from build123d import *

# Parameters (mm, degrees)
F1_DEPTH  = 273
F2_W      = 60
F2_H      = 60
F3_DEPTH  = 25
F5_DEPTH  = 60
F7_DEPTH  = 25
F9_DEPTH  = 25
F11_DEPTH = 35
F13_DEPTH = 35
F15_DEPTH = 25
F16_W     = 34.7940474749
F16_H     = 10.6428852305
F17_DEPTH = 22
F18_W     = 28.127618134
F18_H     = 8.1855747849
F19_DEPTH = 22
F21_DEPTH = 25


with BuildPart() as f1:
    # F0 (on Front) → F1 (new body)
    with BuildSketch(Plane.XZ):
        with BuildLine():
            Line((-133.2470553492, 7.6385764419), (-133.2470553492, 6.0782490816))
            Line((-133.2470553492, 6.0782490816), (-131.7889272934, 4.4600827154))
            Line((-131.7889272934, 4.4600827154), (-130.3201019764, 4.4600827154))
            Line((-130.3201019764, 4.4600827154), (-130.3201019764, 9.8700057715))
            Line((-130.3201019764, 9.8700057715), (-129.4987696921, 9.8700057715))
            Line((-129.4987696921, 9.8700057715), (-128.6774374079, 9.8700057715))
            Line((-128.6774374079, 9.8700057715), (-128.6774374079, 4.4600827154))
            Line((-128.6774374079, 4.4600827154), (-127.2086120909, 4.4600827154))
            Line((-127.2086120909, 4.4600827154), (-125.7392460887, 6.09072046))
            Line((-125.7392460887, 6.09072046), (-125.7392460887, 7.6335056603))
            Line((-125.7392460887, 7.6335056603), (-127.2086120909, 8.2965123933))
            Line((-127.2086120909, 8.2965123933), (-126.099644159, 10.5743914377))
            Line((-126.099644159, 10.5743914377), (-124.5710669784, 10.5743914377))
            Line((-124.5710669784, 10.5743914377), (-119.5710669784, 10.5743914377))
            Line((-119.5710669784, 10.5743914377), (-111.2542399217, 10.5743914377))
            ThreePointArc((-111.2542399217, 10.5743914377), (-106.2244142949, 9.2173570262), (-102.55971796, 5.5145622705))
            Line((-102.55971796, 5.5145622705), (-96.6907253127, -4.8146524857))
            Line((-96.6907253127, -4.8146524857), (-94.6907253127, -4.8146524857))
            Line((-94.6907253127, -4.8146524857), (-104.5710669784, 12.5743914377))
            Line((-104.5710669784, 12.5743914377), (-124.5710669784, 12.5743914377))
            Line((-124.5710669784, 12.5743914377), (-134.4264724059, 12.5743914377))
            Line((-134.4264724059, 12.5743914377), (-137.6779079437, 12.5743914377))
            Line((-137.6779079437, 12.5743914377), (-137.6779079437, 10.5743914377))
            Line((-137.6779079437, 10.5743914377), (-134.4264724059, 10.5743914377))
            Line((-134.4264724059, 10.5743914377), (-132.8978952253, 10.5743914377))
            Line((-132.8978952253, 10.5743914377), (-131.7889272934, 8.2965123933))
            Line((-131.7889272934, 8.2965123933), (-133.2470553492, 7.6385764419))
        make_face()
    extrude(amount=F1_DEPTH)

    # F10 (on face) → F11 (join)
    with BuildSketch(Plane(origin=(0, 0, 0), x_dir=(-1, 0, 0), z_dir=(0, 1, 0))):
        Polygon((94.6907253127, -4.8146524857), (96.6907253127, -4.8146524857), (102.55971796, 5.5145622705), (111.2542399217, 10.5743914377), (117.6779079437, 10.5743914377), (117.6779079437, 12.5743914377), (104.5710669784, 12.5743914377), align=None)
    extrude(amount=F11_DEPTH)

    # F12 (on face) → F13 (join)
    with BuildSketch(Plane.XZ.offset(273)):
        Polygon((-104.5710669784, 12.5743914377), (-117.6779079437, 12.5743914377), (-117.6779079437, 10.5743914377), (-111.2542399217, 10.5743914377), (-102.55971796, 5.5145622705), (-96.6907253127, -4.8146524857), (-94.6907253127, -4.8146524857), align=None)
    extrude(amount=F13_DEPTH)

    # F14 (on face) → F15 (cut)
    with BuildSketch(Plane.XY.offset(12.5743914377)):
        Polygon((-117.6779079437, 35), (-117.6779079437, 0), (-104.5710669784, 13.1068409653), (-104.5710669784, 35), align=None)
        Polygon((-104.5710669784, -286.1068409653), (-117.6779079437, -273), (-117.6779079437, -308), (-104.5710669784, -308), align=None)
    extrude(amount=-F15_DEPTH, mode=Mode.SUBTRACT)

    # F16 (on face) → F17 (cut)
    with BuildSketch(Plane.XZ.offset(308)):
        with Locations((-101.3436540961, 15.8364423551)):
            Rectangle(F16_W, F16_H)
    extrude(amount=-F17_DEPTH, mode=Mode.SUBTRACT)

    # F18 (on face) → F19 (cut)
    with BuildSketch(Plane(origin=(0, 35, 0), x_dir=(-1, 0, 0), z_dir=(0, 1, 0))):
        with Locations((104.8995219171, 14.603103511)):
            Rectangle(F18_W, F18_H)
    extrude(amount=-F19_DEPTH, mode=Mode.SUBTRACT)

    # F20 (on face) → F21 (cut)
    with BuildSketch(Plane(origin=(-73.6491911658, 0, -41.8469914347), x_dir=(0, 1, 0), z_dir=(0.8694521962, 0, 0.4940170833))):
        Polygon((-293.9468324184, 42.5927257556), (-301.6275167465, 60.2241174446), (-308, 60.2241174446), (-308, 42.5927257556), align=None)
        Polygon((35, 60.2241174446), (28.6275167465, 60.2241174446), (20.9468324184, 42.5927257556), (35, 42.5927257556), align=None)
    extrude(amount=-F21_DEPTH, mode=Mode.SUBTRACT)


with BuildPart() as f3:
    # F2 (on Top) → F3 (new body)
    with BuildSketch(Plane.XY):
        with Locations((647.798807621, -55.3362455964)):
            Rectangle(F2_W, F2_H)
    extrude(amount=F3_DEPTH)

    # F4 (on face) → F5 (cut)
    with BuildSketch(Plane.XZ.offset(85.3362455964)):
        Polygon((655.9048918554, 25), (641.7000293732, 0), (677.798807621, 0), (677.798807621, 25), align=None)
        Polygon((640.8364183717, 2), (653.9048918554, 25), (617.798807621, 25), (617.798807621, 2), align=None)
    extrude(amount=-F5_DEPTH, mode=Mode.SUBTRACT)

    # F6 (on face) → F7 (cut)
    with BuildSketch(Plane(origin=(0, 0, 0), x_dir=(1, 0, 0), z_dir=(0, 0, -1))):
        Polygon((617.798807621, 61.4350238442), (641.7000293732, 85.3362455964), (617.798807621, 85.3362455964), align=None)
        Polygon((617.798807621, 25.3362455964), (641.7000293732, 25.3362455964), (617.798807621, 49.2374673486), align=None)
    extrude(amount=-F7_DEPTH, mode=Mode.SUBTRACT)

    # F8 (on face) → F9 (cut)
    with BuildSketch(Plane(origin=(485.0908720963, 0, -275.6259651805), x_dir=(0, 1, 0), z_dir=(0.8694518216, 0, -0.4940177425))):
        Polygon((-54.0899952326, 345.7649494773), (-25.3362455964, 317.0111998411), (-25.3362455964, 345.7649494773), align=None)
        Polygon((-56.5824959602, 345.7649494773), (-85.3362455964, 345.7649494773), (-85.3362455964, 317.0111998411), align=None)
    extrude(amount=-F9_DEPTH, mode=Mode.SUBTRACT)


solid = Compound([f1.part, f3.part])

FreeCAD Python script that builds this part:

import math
import FreeCAD as App
import Part
import Sketcher


def add_polygon(sketch, points):
    """Adds a closed chain of lines whose ends are joined by coincident constraints."""
    first, n = sketch.GeometryCount, len(points)
    for a, b in zip(points, points[1:] + points[:1]):
        sketch.addGeometry(Part.LineSegment(App.Vector(*a, 0), App.Vector(*b, 0)), False)
    for i in range(n):
        sketch.addConstraint(Sketcher.Constraint("Coincident", first + i, 2, first + (i + 1) % n, 1))

doc = App.newDocument("Part")
body = doc.addObject("PartDesign::Body", "Body")

sketch1 = body.newObject("Sketcher::SketchObject", "Sketch")
sketch1.AttachmentSupport = (doc.getObject("XZ_Plane"), [""])
sketch1.MapMode = "FlatFace"
sketch1.addGeometry([
    Part.LineSegment(App.Vector(-133.247055, 7.638576, 0), App.Vector(-133.247055, 6.078249, 0)),
    Part.LineSegment(App.Vector(-133.247055, 6.078249, 0), App.Vector(-131.788927, 4.460083, 0)),
    Part.LineSegment(App.Vector(-131.788927, 4.460083, 0), App.Vector(-130.320102, 4.460083, 0)),
    Part.LineSegment(App.Vector(-130.320102, 4.460083, 0), App.Vector(-130.320102, 9.870006, 0)),
    Part.LineSegment(App.Vector(-130.320102, 9.870006, 0), App.Vector(-128.677437, 9.870006, 0)),
    Part.LineSegment(App.Vector(-128.677437, 9.870006, 0), App.Vector(-128.677437, 4.460083, 0)),
    Part.LineSegment(App.Vector(-128.677437, 4.460083, 0), App.Vector(-127.208612, 4.460083, 0)),
    Part.LineSegment(App.Vector(-127.208612, 4.460083, 0), App.Vector(-125.739246, 6.09072, 0)),
    Part.LineSegment(App.Vector(-125.739246, 6.09072, 0), App.Vector(-125.739246, 7.633506, 0)),
    Part.LineSegment(App.Vector(-125.739246, 7.633506, 0), App.Vector(-127.208612, 8.296512, 0)),
    Part.LineSegment(App.Vector(-127.208612, 8.296512, 0), App.Vector(-126.099644, 10.574391, 0)),
    Part.LineSegment(App.Vector(-126.099644, 10.574391, 0), App.Vector(-111.25424, 10.574391, 0)),
    Part.ArcOfCircle(Part.Circle(App.Vector(-111.25424, 0.574391, 0), App.Vector(0, 0, 1), 10), math.radians(29.604957), math.radians(90)),
    Part.LineSegment(App.Vector(-102.559718, 5.514562, 0), App.Vector(-96.690725, -4.814652, 0)),
    Part.LineSegment(App.Vector(-96.690725, -4.814652, 0), App.Vector(-94.690725, -4.814652, 0)),
    Part.LineSegment(App.Vector(-94.690725, -4.814652, 0), App.Vector(-104.571067, 12.574391, 0)),
    Part.LineSegment(App.Vector(-104.571067, 12.574391, 0), App.Vector(-137.677908, 12.574391, 0)),
    Part.LineSegment(App.Vector(-137.677908, 12.574391, 0), App.Vector(-137.677908, 10.574391, 0)),
    Part.LineSegment(App.Vector(-137.677908, 10.574391, 0), App.Vector(-132.897895, 10.574391, 0)),
    Part.LineSegment(App.Vector(-132.897895, 10.574391, 0), App.Vector(-131.788927, 8.296512, 0)),
    Part.LineSegment(App.Vector(-131.788927, 8.296512, 0), App.Vector(-133.247055, 7.638576, 0)),
], False)
sketch1.addConstraint([
    Sketcher.Constraint("Coincident", 0, 2, 1, 1),
    Sketcher.Constraint("Coincident", 1, 2, 2, 1),
    Sketcher.Constraint("Coincident", 2, 2, 3, 1),
    Sketcher.Constraint("Coincident", 3, 2, 4, 1),
    Sketcher.Constraint("Coincident", 4, 2, 5, 1),
    Sketcher.Constraint("Coincident", 5, 2, 6, 1),
    Sketcher.Constraint("Coincident", 6, 2, 7, 1),
    Sketcher.Constraint("Coincident", 7, 2, 8, 1),
    Sketcher.Constraint("Coincident", 8, 2, 9, 1),
    Sketcher.Constraint("Coincident", 9, 2, 10, 1),
    Sketcher.Constraint("Coincident", 10, 2, 11, 1),
    Sketcher.Constraint("Tangent", 11, 2, 12, 2),
    Sketcher.Constraint("Tangent", 12, 1, 13, 1),
    Sketcher.Constraint("Coincident", 13, 2, 14, 1),
    Sketcher.Constraint("Coincident", 14, 2, 15, 1),
    Sketcher.Constraint("Coincident", 15, 2, 16, 1),
    Sketcher.Constraint("Coincident", 16, 2, 17, 1),
    Sketcher.Constraint("Coincident", 17, 2, 18, 1),
    Sketcher.Constraint("Coincident", 18, 2, 19, 1),
    Sketcher.Constraint("Coincident", 19, 2, 20, 1),
    Sketcher.Constraint("Coincident", 20, 2, 0, 1),
    Sketcher.Constraint("Vertical", 0),
    Sketcher.Constraint("Horizontal", 2),
    Sketcher.Constraint("Vertical", 3),
    Sketcher.Constraint("Horizontal", 4),
    Sketcher.Constraint("Vertical", 5),
    Sketcher.Constraint("Horizontal", 6),
    Sketcher.Constraint("Vertical", 8),
    Sketcher.Constraint("Horizontal", 11),
    Sketcher.Constraint("Horizontal", 14),
    Sketcher.Constraint("Horizontal", 16),
    Sketcher.Constraint("Vertical", 17),
    Sketcher.Constraint("Horizontal", 18),
    Sketcher.Constraint("Parallel", 13, 15),
    Sketcher.Constraint("Horizontal", 2, 2, 5, 2),
    Sketcher.Constraint("Horizontal", 11, 2, 17, 2),
    Sketcher.Constraint("Horizontal", 9, 2, 19, 2),
    Sketcher.Constraint("Vertical", 6, 2, 9, 2),
    Sketcher.Constraint("Vertical", 1, 2, 19, 2),
    Sketcher.Constraint("Equal", 2, 6),
    Sketcher.Constraint("Equal", 14, 17),
    Sketcher.Constraint("Equal", 10, 19),
    Sketcher.Constraint("Radius", 12, 10.0),
    Sketcher.Constraint("DistanceX", 14, 1, 14, 2, 2.0),
    Sketcher.Constraint("Distance", 15, 20.0),
    Sketcher.Constraint("DistanceX", 16, 2, 16, 1, 33.106841),
    Sketcher.Constraint("DistanceX", 2, 2, -1, 1, 130.320102),
    Sketcher.Constraint("DistanceY", 8, 2, 4, 2, 2.2365),
    Sketcher.Constraint("DistanceX", 10, 2, 8, 2, 0.360398),
    Sketcher.Constraint("Distance", 1, 2.17821),
    Sketcher.Constraint("Distance", 9, 1.612022),
    Sketcher.Constraint("Distance", 13, 11.880141),
    Sketcher.Constraint("DistanceX", 2, 1, 2, 2, 1.468825),
    Sketcher.Constraint("DistanceX", 4, 1, 4, 2, 1.642665),
    Sketcher.Constraint("DistanceX", 11, 1, 11, 2, 14.845404),
    Sketcher.Constraint("DistanceX", 18, 1, 18, 2, 4.780013),
    Sketcher.Constraint("DistanceY", 0, 2, 0, 1, 1.560327),
    Sketcher.Constraint("DistanceY", 3, 1, 3, 2, 5.409923),
    Sketcher.Constraint("DistanceY", 8, 1, 8, 2, 1.542785),
    Sketcher.Constraint("DistanceY", -1, 1, 12, 3, 0.574391),
    Sketcher.Constraint("DistanceY", -1, 1, 0, 2, 6.078249),
    Sketcher.Constraint("DistanceY", -1, 1, 7, 2, 6.09072),
])
pad1 = body.newObject("PartDesign::Pad", "Pad")
pad1.Profile = sketch1
pad1.Length = 273

sketch2 = body.newObject("Sketcher::SketchObject", "Sketch001")
sketch2.AttachmentSupport = (doc.getObject("XZ_Plane"), [""])
sketch2.MapMode = "FlatFace"
add_polygon(sketch2, [(-94.690725, -4.814652), (-96.690725, -4.814652), (-102.559718, 5.514562), (-111.25424, 10.574391), (-117.677908, 10.574391), (-117.677908, 12.574391), (-104.571067, 12.574391)])
sketch2.addConstraint([
    Sketcher.Constraint("Horizontal", 0),
    Sketcher.Constraint("Horizontal", 3),
    Sketcher.Constraint("Vertical", 4),
    Sketcher.Constraint("Horizontal", 5),
    Sketcher.Constraint("Parallel", 1, 6),
    Sketcher.Constraint("Equal", 0, 4),
    Sketcher.Constraint("DistanceX", 0, 2, 0, 1, 2.0),
    Sketcher.Constraint("Distance", 6, 20.0),
    Sketcher.Constraint("DistanceX", 3, 2, 3, 1, 6.423668),
    Sketcher.Constraint("DistanceX", 5, 1, 5, 2, 13.106841),
    Sketcher.Constraint("Distance", 1, 11.880141),
    Sketcher.Constraint("Distance", 2, 10.059651),
    Sketcher.Constraint("DistanceX", 2, 2, -1, 1, 111.25424),
    Sketcher.Constraint("DistanceY", -1, 1, 2, 2, 10.574391),
])
pad2 = body.newObject("PartDesign::Pad", "Pad001")
pad2.Profile = sketch2
pad2.Length = 35
pad2.Reversed = True

sketch3 = body.newObject("Sketcher::SketchObject", "Sketch002")
sketch3.AttachmentSupport = (doc.getObject("XZ_Plane"), [""])
sketch3.MapMode = "FlatFace"
sketch3.AttachmentOffset = App.Placement(App.Vector(0, 0, 273), App.Rotation())
add_polygon(sketch3, [(-104.571067, 12.574391), (-117.677908, 12.574391), (-117.677908, 10.574391), (-111.25424, 10.574391), (-102.559718, 5.514562), (-96.690725, -4.814652), (-94.690725, -4.814652)])
sketch3.addConstraint([
    Sketcher.Constraint("Horizontal", 0),
    Sketcher.Constraint("Vertical", 1),
    Sketcher.Constraint("Horizontal", 2),
    Sketcher.Constraint("Horizontal", 5),
    Sketcher.Constraint("Parallel", 4, 6),
    Sketcher.Constraint("Equal", 5, 1),
    Sketcher.Constraint("DistanceX", 5, 1, 5, 2, 2.0),
    Sketcher.Constraint("Distance", 6, 20.0),
    Sketcher.Constraint("DistanceX", 0, 2, 0, 1, 13.106841),
    Sketcher.Constraint("DistanceX", 2, 1, 2, 2, 6.423668),
    Sketcher.Constraint("Distance", 3, 10.059651),
    Sketcher.Constraint("Distance", 4, 11.880141),
    Sketcher.Constraint("DistanceY", -1, 1, 0, 2, 12.574391),
    Sketcher.Constraint("DistanceX", 2, 2, -1, 1, 111.25424),
])
pad3 = body.newObject("PartDesign::Pad", "Pad002")
pad3.Profile = sketch3
pad3.Length = 35

sketch4 = body.newObject("Sketcher::SketchObject", "Sketch003")
sketch4.AttachmentSupport = (doc.getObject("XY_Plane"), [""])
sketch4.MapMode = "FlatFace"
sketch4.AttachmentOffset = App.Placement(App.Vector(0, 0, 12.574391), App.Rotation())
add_polygon(sketch4, [(-117.677908, 35), (-117.677908, 0), (-104.571067, 13.106841), (-104.571067, 35)])
add_polygon(sketch4, [(-104.571067, -286.106841), (-117.677908, -273), (-117.677908, -308), (-104.571067, -308)])
sketch4.addConstraint([
    Sketcher.Constraint("Vertical", 0),
    Sketcher.Constraint("Vertical", 2),
    Sketcher.Constraint("Horizontal", 3),
    Sketcher.Constraint("Vertical", 5),
    Sketcher.Constraint("Horizontal", 6),
    Sketcher.Constraint("Vertical", 7),
    Sketcher.Constraint("PointOnObject", 0, 2, -1),
    Sketcher.Constraint("Perpendicular", 1, 4),
    Sketcher.Constraint("Vertical", 3, 2, 4, 2),
    Sketcher.Constraint("Vertical", 2, 2, 6, 2),
    Sketcher.Constraint("Equal", 0, 5),
    Sketcher.Constraint("Equal", 2, 7),
    Sketcher.Constraint("DistanceY", 0, 2, 0, 1, 35.0),
    Sketcher.Constraint("DistanceY", 4, 2, -1, 1, 273.0),
    Sketcher.Constraint("DistanceX", 3, 2, 3, 1, 13.106841),
    Sketcher.Constraint("DistanceX", 0, 2, -1, 1, 117.677908),
])
pocket1 = body.newObject("PartDesign::Pocket", "Pocket")
pocket1.Profile = sketch4
pocket1.Length = 25

sketch5 = body.newObject("Sketcher::SketchObject", "Sketch004")
sketch5.AttachmentSupport = (doc.getObject("XZ_Plane"), [""])
sketch5.MapMode = "FlatFace"
sketch5.AttachmentOffset = App.Placement(App.Vector(0, 0, 308), App.Rotation())
add_polygon(sketch5, [(-118.740678, 21.157885), (-118.740678, 10.515), (-83.94663, 10.515), (-83.94663, 21.157885)])
sketch5.addConstraint([
    Sketcher.Constraint("Vertical", 0),
    Sketcher.Constraint("Horizontal", 1),
    Sketcher.Constraint("Vertical", 2),
    Sketcher.Constraint("Horizontal", 3),
    Sketcher.Constraint("DistanceY", -1, 1, 0, 2, 10.515),
    Sketcher.Constraint("DistanceX", 1, 1, 1, 2, 34.794047),
    Sketcher.Constraint("DistanceY", 0, 2, 0, 1, 10.642885),
    Sketcher.Constraint("DistanceX", 1, 2, -1, 1, 83.94663),
])
pocket2 = body.newObject("PartDesign::Pocket", "Pocket001")
pocket2.Profile = sketch5
pocket2.Length = 22

sketch6 = body.newObject("Sketcher::SketchObject", "Sketch005")
sketch6.AttachmentSupport = (doc.getObject("XZ_Plane"), [""])
sketch6.MapMode = "FlatFace"
sketch6.AttachmentOffset = App.Placement(App.Vector(0, 0, -35), App.Rotation())
add_polygon(sketch6, [(-90.835713, 18.695891), (-90.835713, 10.510316), (-118.963331, 10.510316), (-118.963331, 18.695891)])
sketch6.addConstraint([
    Sketcher.Constraint("Vertical", 0),
    Sketcher.Constraint("Horizontal", 1),
    Sketcher.Constraint("Vertical", 2),
    Sketcher.Constraint("Horizontal", 3),
    Sketcher.Constraint("DistanceX", 1, 2, 1, 1, 28.127618),
    Sketcher.Constraint("DistanceY", 0, 2, 0, 1, 8.185575),
    Sketcher.Constraint("DistanceX", 1, 2, -1, 1, 118.963331),
    Sketcher.Constraint("DistanceY", -1, 1, 2, 2, 18.695891),
])
pocket3 = body.newObject("PartDesign::Pocket", "Pocket002")
pocket3.Profile = sketch6
pocket3.Length = 22
pocket3.Reversed = True

sketch7 = body.newObject("Sketcher::SketchObject", "Sketch006")
sketch7.Placement = App.Placement(App.Vector(-73.649191, 0, -41.846991), App.Rotation(App.Vector(0, 1, 0), App.Vector(-0.494017083, 0, 0.869452196), App.Vector(0.869452196, 0, 0.494017083), "ZXY"))
add_polygon(sketch7, [(-293.946832, 42.592726), (-301.627517, 60.224117), (-308, 60.224117), (-308, 42.592726)])
add_polygon(sketch7, [(35, 60.224117), (28.627517, 60.224117), (20.946832, 42.592726), (35, 42.592726)])
sketch7.addConstraint([
    Sketcher.Constraint("Horizontal", 1),
    Sketcher.Constraint("Vertical", 2),
    Sketcher.Constraint("Horizontal", 3),
    Sketcher.Constraint("Horizontal", 4),
    Sketcher.Constraint("Horizontal", 6),
    Sketcher.Constraint("Vertical", 7),
    Sketcher.Constraint("Horizontal", 1, 2, 4, 2),
    Sketcher.Constraint("Horizontal", 3, 2, 5, 2),
    Sketcher.Constraint("Equal", 1, 4),
    Sketcher.Constraint("Equal", 3, 6),
    Sketcher.Constraint("DistanceX", 1, 2, -1, 1, 308.0),
    Sketcher.Constraint("DistanceX", -1, 1, 6, 2, 35.0),
    Sketcher.Constraint("DistanceY", 2, 2, 2, 1, 17.631392),
    Sketcher.Constraint("DistanceX", 1, 2, 1, 1, 6.372483),
    Sketcher.Constraint("DistanceX", 3, 1, 3, 2, 14.053168),
    Sketcher.Constraint("DistanceY", -1, 1, 0, 2, 60.224117),
])
pocket4 = body.newObject("PartDesign::Pocket", "Pocket003")
pocket4.Profile = sketch7
pocket4.Length = 25
body2 = doc.addObject("PartDesign::Body", "Body001")

sketch8 = body2.newObject("Sketcher::SketchObject", "Sketch007")
sketch8.AttachmentSupport = (doc.getObject("XY_Plane001"), [""])
sketch8.MapMode = "FlatFace"
add_polygon(sketch8, [(617.798808, -25.336246), (617.798808, -85.336246), (677.798808, -85.336246), (677.798808, -25.336246)])
sketch8.addConstraint([
    Sketcher.Constraint("Vertical", 0),
    Sketcher.Constraint("Horizontal", 1),
    Sketcher.Constraint("Vertical", 2),
    Sketcher.Constraint("Horizontal", 3),
    Sketcher.Constraint("Equal", 3, 0),
    Sketcher.Constraint("DistanceX", 1, 1, 1, 2, 60.0),
    Sketcher.Constraint("DistanceX", -1, 1, 0, 2, 617.798808),
    Sketcher.Constraint("DistanceY", 0, 2, -1, 1, 85.336246),
])
pad4 = body2.newObject("PartDesign::Pad", "Pad003")
pad4.Profile = sketch8
pad4.Length = 25

sketch9 = body2.newObject("Sketcher::SketchObject", "Sketch008")
sketch9.AttachmentSupport = (doc.getObject("XZ_Plane001"), [""])
sketch9.MapMode = "FlatFace"
sketch9.AttachmentOffset = App.Placement(App.Vector(0, 0, 85.336246), App.Rotation())
add_polygon(sketch9, [(655.904892, 25), (641.700029, 0), (677.798808, 0), (677.798808, 25)])
add_polygon(sketch9, [(640.836418, 2), (653.904892, 25), (617.798808, 25), (617.798808, 2)])
sketch9.addConstraint([
    Sketcher.Constraint("Horizontal", 1),
    Sketcher.Constraint("Vertical", 2),
    Sketcher.Constraint("Horizontal", 3),
    Sketcher.Constraint("Horizontal", 5),
    Sketcher.Constraint("Vertical", 6),
    Sketcher.Constraint("Horizontal", 7),
    Sketcher.Constraint("PointOnObject", 0, 2, -1),
    Sketcher.Constraint("Parallel", 0, 4),
    Sketcher.Constraint("Horizontal", 3, 2, 4, 2),
    Sketcher.Constraint("DistanceY", 2, 1, 2, 2, 25.0),
    Sketcher.Constraint("DistanceY", 6, 2, 6, 1, 23.0),
    Sketcher.Constraint("DistanceX", 4, 2, 3, 2, 2.0),
    Sketcher.Constraint("DistanceX", 5, 2, 2, 2, 60.0),
    Sketcher.Constraint("DistanceX", 1, 1, 1, 2, 36.098778),
    Sketcher.Constraint("DistanceX", 7, 1, 7, 2, 23.037611),
    Sketcher.Constraint("DistanceX", -1, 1, 0, 2, 641.700029),
])
pocket5 = body2.newObject("PartDesign::Pocket", "Pocket004")
pocket5.Profile = sketch9
pocket5.Length = 60

sketch10 = body2.newObject("Sketcher::SketchObject", "Sketch009")
sketch10.AttachmentSupport = (doc.getObject("XY_Plane001"), [""])
sketch10.MapMode = "FlatFace"
add_polygon(sketch10, [(617.798808, -61.435024), (641.700029, -85.336246), (617.798808, -85.336246)])
add_polygon(sketch10, [(617.798808, -25.336246), (641.700029, -25.336246), (617.798808, -49.237467)])
sketch10.addConstraint([
    Sketcher.Constraint("Horizontal", 1),
    Sketcher.Constraint("Vertical", 2),
    Sketcher.Constraint("Horizontal", 3),
    Sketcher.Constraint("Vertical", 5),
    Sketcher.Constraint("Perpendicular", 0, 4),
    Sketcher.Constraint("Vertical", 0, 2, 3, 2),
    Sketcher.Constraint("Vertical", 2, 2, 4, 2),
    Sketcher.Constraint("Equal", 3, 2),
    Sketcher.Constraint("DistanceY", 0, 2, 3, 2, 60.0),
    Sketcher.Constraint("DistanceX", 1, 2, 1, 1, 23.901222),
    Sketcher.Constraint("DistanceX", -1, 1, 0, 2, 641.700029),
    Sketcher.Constraint("DistanceY", 0, 2, -1, 1, 85.336246),
])
pocket6 = body2.newObject("PartDesign::Pocket", "Pocket005")
pocket6.Profile = sketch10
pocket6.Length = 25
pocket6.Reversed = True

sketch11 = body2.newObject("Sketcher::SketchObject", "Sketch010")
sketch11.Placement = App.Placement(App.Vector(485.090872, 0, -275.625965), App.Rotation(App.Vector(0, 1, 0), App.Vector(0.494017743, 0, 0.869451822), App.Vector(0.869451822, 0, -0.494017743), "ZXY"))
add_polygon(sketch11, [(-54.089995, 345.76495), (-25.336246, 317.0112), (-25.336246, 345.76495)])
add_polygon(sketch11, [(-56.582496, 345.76495), (-85.336246, 345.76495), (-85.336246, 317.0112)])
sketch11.addConstraint([
    Sketcher.Constraint("Vertical", 1),
    Sketcher.Constraint("Horizontal", 2),
    Sketcher.Constraint("Horizontal", 3),
    Sketcher.Constraint("Vertical", 4),
    Sketcher.Constraint("Perpendicular", 0, 5),
    Sketcher.Constraint("Horizontal", 2, 2, 3, 2),
    Sketcher.Constraint("Horizontal", 0, 2, 4, 2),
    Sketcher.Constraint("Equal", 2, 3),
    Sketcher.Constraint("DistanceX", 3, 2, 1, 2, 60.0),
    Sketcher.Constraint("DistanceX", 2, 2, 2, 1, 28.75375),
    Sketcher.Constraint("DistanceY", -1, 1, 0, 2, 317.0112),
    Sketcher.Constraint("DistanceX", 0, 2, -1, 1, 25.336246),
])
pocket7 = body2.newObject("PartDesign::Pocket", "Pocket006")
pocket7.Profile = sketch11
pocket7.Length = 25

doc.recompute()
